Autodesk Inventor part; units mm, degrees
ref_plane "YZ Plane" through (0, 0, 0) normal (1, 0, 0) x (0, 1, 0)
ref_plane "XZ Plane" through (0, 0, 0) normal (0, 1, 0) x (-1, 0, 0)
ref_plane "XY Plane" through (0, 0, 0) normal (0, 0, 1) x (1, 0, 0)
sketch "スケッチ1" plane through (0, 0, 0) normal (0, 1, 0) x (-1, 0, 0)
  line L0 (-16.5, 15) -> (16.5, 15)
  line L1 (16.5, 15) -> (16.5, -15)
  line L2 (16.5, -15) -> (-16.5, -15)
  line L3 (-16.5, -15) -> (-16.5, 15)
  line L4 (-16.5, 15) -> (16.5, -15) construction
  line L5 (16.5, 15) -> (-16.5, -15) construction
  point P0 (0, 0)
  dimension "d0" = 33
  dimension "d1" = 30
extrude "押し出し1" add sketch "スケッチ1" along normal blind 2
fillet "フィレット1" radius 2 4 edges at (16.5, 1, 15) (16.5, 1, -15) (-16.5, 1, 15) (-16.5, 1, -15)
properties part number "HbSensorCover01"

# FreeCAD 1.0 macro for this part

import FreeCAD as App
import Part
import Sketcher
Q = App.Units.Quantity


def edges_at(feature, points):
    """Names of the edges that pass closest to the given points."""
    edges = feature.Shape.Edges
    near = lambda p: min(range(len(edges)), key=lambda i: edges[i].distToShape(Part.Vertex(*p))[0])
    return sorted({f"Edge{near(p) + 1}" for p in points})

doc = App.newDocument("Part")
params = doc.addObject("Spreadsheet::Sheet", "Params")
for row, (alias, value) in enumerate([
    ("sketch1_width", "33 mm"),
    ("sketch1_height", "30 mm"),
    ("pad1_length", "2 mm"),
    ("fillet_radius", "2 mm"),
], start=1):
    params.set(f"A{row}", alias)
    params.set(f"B{row}", "=" + value)
    params.setAlias(f"B{row}", alias)

body = doc.addObject("PartDesign::Body", "Body")

# Sketch on XZ plane
sketch1 = doc.addObject("Sketcher::SketchObject", "Sketch")
body.addObject(sketch1)
sketch1.AttachmentSupport = (doc.XZ_Plane, [""])
sketch1.MapMode = "FlatFace"
sketch1.addGeometry(Part.LineSegment(App.Vector(-16.5, 15, 0), App.Vector(16.5, 15, 0)), False)
sketch1.addGeometry(Part.LineSegment(App.Vector(16.5, 15, 0), App.Vector(16.5, -15, 0)), False)
sketch1.addGeometry(Part.LineSegment(App.Vector(16.5, -15, 0), App.Vector(-16.5, -15, 0)), False)
sketch1.addGeometry(Part.LineSegment(App.Vector(-16.5, -15, 0), App.Vector(-16.5, 15, 0)), False)
sketch1.addConstraint(Sketcher.Constraint("Coincident", 0, 2, 1, 1))
sketch1.addConstraint(Sketcher.Constraint("Coincident", 1, 2, 2, 1))
sketch1.addConstraint(Sketcher.Constraint("Coincident", 2, 2, 3, 1))
sketch1.addConstraint(Sketcher.Constraint("Coincident", 3, 2, 0, 1))
sketch1.addConstraint(Sketcher.Constraint("Horizontal", 0))
sketch1.addConstraint(Sketcher.Constraint("Vertical", 1))
sketch1.addConstraint(Sketcher.Constraint("Horizontal", 2))
sketch1.addConstraint(Sketcher.Constraint("Vertical", 3))
sketch1.addConstraint(Sketcher.Constraint("Symmetric", 0, 2, 2, 2, -1, 1))
sketch1.addConstraint(Sketcher.Constraint("DistanceX", 0, 1, 0, 2, Q("33 mm")))
sketch1.addConstraint(Sketcher.Constraint("DistanceY", 1, 2, 1, 1, Q("30 mm")))
sketch1.setExpression("Constraints[9]", "Params.sketch1_width")
sketch1.setExpression("Constraints[10]", "Params.sketch1_height")
pad1 = doc.addObject("PartDesign::Pad", "Pad")
body.addObject(pad1)
pad1.Profile = sketch1
pad1.setExpression("Length", "Params.pad1_length")
pad1.Reversed = True
doc.recompute()

fillet = doc.addObject("PartDesign::Fillet", "Fillet")
body.addObject(fillet)
fillet.Base = (pad1, edges_at(pad1, [
    (16.5, 1, 15),
    (16.5, 1, -15),
    (-16.5, 1, 15),
    (-16.5, 1, -15),
]))
fillet.setExpression("Radius", "Params.fillet_radius")

doc.recompute()
